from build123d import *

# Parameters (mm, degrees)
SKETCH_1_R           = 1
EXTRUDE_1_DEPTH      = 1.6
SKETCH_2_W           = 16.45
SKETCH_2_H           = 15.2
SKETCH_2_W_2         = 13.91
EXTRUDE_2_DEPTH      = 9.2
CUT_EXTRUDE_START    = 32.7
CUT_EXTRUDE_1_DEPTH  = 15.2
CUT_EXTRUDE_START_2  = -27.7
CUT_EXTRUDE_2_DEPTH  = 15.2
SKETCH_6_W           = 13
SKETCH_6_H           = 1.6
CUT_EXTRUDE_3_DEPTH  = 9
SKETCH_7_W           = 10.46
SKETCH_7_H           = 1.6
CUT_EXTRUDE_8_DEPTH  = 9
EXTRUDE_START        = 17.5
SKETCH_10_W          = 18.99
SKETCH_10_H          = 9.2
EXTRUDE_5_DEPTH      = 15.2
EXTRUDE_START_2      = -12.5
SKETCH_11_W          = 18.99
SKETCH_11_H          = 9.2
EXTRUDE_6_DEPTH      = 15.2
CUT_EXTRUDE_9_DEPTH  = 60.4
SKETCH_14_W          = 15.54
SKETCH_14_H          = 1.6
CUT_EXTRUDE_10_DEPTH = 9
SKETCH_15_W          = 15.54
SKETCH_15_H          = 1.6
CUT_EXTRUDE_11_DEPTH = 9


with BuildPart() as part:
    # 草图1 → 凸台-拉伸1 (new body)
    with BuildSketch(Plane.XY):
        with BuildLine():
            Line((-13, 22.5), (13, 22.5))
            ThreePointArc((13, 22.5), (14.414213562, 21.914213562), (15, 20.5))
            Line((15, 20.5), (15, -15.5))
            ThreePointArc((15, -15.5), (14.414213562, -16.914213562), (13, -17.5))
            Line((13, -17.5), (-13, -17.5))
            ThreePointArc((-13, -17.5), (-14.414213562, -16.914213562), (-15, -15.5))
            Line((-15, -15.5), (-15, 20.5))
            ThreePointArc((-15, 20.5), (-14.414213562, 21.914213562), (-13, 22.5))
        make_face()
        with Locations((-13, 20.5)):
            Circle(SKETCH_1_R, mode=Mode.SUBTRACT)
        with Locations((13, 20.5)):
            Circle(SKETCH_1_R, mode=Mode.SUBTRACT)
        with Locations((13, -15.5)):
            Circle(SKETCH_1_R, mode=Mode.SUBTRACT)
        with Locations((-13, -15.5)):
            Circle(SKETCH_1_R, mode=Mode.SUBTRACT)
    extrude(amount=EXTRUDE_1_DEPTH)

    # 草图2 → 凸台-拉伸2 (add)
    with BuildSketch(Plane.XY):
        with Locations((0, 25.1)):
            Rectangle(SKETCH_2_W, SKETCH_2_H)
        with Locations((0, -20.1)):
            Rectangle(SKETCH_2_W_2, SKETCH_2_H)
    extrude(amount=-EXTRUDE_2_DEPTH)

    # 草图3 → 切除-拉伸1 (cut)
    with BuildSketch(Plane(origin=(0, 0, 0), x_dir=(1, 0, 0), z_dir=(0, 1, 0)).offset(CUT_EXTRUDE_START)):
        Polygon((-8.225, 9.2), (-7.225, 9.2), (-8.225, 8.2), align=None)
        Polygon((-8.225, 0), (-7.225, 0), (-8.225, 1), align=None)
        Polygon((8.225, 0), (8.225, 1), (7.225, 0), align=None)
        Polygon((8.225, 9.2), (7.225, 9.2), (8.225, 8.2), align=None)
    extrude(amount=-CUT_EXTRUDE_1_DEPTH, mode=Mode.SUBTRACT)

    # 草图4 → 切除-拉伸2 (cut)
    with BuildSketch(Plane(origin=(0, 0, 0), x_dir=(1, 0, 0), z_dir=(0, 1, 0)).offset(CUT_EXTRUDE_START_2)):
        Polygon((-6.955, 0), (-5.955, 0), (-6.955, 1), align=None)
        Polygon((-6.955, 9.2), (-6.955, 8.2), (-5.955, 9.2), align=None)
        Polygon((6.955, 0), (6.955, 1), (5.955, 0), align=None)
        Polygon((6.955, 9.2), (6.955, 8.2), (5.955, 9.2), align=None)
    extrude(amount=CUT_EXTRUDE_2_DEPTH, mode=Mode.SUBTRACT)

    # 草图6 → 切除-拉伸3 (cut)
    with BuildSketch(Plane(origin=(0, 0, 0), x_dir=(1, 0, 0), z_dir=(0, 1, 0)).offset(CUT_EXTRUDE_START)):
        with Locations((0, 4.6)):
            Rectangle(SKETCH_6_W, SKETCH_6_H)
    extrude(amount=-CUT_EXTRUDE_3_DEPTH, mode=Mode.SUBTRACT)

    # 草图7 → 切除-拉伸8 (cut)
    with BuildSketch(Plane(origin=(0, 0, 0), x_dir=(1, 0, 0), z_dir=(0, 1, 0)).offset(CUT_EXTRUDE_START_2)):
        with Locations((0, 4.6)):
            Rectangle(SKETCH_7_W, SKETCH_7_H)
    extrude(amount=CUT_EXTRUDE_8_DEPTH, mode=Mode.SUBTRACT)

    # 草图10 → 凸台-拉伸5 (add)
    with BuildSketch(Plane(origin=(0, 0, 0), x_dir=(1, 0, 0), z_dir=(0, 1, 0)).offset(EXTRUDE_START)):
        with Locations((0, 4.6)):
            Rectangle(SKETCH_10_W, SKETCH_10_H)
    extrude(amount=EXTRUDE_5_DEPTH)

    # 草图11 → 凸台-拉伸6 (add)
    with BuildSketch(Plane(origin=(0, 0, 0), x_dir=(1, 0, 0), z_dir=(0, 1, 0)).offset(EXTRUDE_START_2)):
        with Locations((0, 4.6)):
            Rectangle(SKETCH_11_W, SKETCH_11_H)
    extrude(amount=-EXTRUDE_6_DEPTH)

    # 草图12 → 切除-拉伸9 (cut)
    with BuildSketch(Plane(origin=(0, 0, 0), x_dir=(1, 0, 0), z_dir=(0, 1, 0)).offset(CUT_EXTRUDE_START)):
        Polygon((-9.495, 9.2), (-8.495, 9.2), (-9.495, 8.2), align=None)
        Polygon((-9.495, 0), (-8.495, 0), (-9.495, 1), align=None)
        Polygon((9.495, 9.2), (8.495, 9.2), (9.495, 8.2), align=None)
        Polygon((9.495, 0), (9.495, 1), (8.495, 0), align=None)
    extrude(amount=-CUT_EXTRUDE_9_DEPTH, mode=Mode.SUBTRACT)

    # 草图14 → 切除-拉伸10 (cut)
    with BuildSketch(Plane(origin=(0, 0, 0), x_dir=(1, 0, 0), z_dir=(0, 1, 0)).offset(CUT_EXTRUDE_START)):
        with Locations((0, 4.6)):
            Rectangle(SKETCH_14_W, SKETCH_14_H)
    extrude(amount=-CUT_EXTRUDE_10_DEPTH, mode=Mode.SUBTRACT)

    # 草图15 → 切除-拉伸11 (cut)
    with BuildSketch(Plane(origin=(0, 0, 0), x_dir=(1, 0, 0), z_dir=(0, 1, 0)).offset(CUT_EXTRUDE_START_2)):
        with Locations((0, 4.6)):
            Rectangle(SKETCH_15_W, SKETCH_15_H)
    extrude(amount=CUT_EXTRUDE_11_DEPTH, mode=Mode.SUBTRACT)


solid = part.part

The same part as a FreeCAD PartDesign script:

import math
import FreeCAD as App
import Part
import Sketcher
Q = App.Units.Quantity


def add_polygon(sketch, points):
    """Adds a closed chain of lines whose ends are joined by coincident constraints."""
    first, n = sketch.GeometryCount, len(points)
    for a, b in zip(points, points[1:] + points[:1]):
        sketch.addGeometry(Part.LineSegment(App.Vector(*a, 0), App.Vector(*b, 0)), False)
    for i in range(n):
        sketch.addConstraint(Sketcher.Constraint("Coincident", first + i, 2, first + (i + 1) % n, 1))

doc = App.newDocument("Part")
body = doc.addObject("PartDesign::Body", "Body")

sketch1 = doc.addObject("Sketcher::SketchObject", "Sketch")
body.addObject(sketch1)
sketch1.AttachmentSupport = (doc.XY_Plane, [""])
sketch1.MapMode = "FlatFace"
sketch1.addGeometry([
    Part.LineSegment(App.Vector(13, 22.5, 0), App.Vector(-13, 22.5, 0)),
    Part.ArcOfCircle(Part.Circle(App.Vector(-13, 20.5, 0), App.Vector(0, 0, 1), 2), math.radians(90), math.radians(180)),
    Part.LineSegment(App.Vector(-15, 20.5, 0), App.Vector(-15, -15.5, 0)),
    Part.ArcOfCircle(Part.Circle(App.Vector(-13, -15.5, 0), App.Vector(0, 0, 1), 2), math.radians(-180), math.radians(-90)),
    Part.LineSegment(App.Vector(-13, -17.5, 0), App.Vector(13, -17.5, 0)),
    Part.ArcOfCircle(Part.Circle(App.Vector(13, -15.5, 0), App.Vector(0, 0, 1), 2), math.radians(-90), math.radians(0)),
    Part.LineSegment(App.Vector(15, -15.5, 0), App.Vector(15, 20.5, 0)),
    Part.ArcOfCircle(Part.Circle(App.Vector(13, 20.5, 0), App.Vector(0, 0, 1), 2), math.radians(0), math.radians(90)),
    Part.Circle(App.Vector(13, -15.5, 0), App.Vector(0, 0, 1), 1),
    Part.Circle(App.Vector(-13, -15.5, 0), App.Vector(0, 0, 1), 1),
    Part.Circle(App.Vector(13, 20.5, 0), App.Vector(0, 0, 1), 1),
    Part.Circle(App.Vector(-13, 20.5, 0), App.Vector(0, 0, 1), 1),
], False)
sketch1.addConstraint([
    Sketcher.Constraint("Tangent", 0, 2, 1, 1),
    Sketcher.Constraint("Tangent", 1, 2, 2, 1),
    Sketcher.Constraint("Tangent", 2, 2, 3, 1),
    Sketcher.Constraint("Tangent", 3, 2, 4, 1),
    Sketcher.Constraint("Tangent", 4, 2, 5, 1),
    Sketcher.Constraint("Tangent", 5, 2, 6, 1),
    Sketcher.Constraint("Tangent", 6, 2, 7, 1),
    Sketcher.Constraint("Tangent", 7, 2, 0, 1),
    Sketcher.Constraint("Horizontal", 0),
    Sketcher.Constraint("Vertical", 2),
    Sketcher.Constraint("Horizontal", 4),
    Sketcher.Constraint("Vertical", 6),
    Sketcher.Constraint("Coincident", 8, 3, 5, 3),
    Sketcher.Constraint("Coincident", 9, 3, 3, 3),
    Sketcher.Constraint("Coincident", 10, 3, 7, 3),
    Sketcher.Constraint("Coincident", 11, 3, 1, 3),
    Sketcher.Constraint("Equal", 1, 3),
    Sketcher.Constraint("Equal", 3, 5),
    Sketcher.Constraint("Equal", 5, 7),
    Sketcher.Constraint("Equal", 8, 9),
    Sketcher.Constraint("Equal", 9, 10),
    Sketcher.Constraint("Equal", 10, 11),
    Sketcher.Constraint("Diameter", 8, Q("2 mm")),
    Sketcher.Constraint("Radius", 1, Q("2 mm")),
    Sketcher.Constraint("DistanceX", 0, 2, 0, 1, Q("26 mm")),
    Sketcher.Constraint("DistanceY", 2, 2, 2, 1, Q("36 mm")),
    Sketcher.Constraint("DistanceX", 1, 3, -1, 1, Q("13 mm")),
    Sketcher.Constraint("DistanceY", -1, 1, 1, 3, Q("20.5 mm")),
])
pad1 = doc.addObject("PartDesign::Pad", "Pad")
body.addObject(pad1)
pad1.Profile = sketch1
pad1.Length = 1.6

sketch2 = doc.addObject("Sketcher::SketchObject", "Sketch001")
body.addObject(sketch2)
sketch2.AttachmentSupport = (doc.XY_Plane, [""])
sketch2.MapMode = "FlatFace"
add_polygon(sketch2, [(-8.225, 32.7), (-8.225, 17.5), (8.225, 17.5), (8.225, 32.7)])
add_polygon(sketch2, [(-6.955, -12.5), (-6.955, -27.7), (6.955, -27.7), (6.955, -12.5)])
sketch2.addConstraint([
    Sketcher.Constraint("Vertical", 0),
    Sketcher.Constraint("Horizontal", 1),
    Sketcher.Constraint("Vertical", 2),
    Sketcher.Constraint("Horizontal", 3),
    Sketcher.Constraint("Vertical", 4),
    Sketcher.Constraint("Horizontal", 5),
    Sketcher.Constraint("Vertical", 6),
    Sketcher.Constraint("Horizontal", 7),
    Sketcher.Constraint("Equal", 2, 4),
    Sketcher.Constraint("DistanceY", 0, 2, 0, 1, Q("15.2 mm")),
    Sketcher.Constraint("DistanceY", 6, 2, 1, 2, Q("30 mm")),
    Sketcher.Constraint("DistanceX", 1, 1, 1, 2, Q("16.45 mm")),
    Sketcher.Constraint("DistanceX", 5, 1, 5, 2, Q("13.91 mm")),
    Sketcher.Constraint("DistanceY", -1, 1, 0, 2, Q("17.5 mm")),
    Sketcher.Constraint("DistanceX", 0, 2, 4, 2, Q("1.27 mm")),
    Sketcher.Constraint("DistanceX", 0, 2, -1, 1, Q("8.225 mm")),
])
pad2 = doc.addObject("PartDesign::Pad", "Pad001")
body.addObject(pad2)
pad2.Profile = sketch2
pad2.Length = 9.2
pad2.Reversed = True

sketch3 = doc.addObject("Sketcher::SketchObject", "Sketch002")
body.addObject(sketch3)
sketch3.AttachmentSupport = (doc.XZ_Plane, [""])
sketch3.MapMode = "FlatFace"
sketch3.AttachmentOffset = App.Placement(App.Vector(0, 0, -32.7), App.Rotation())
add_polygon(sketch3, [(-7.225, -9.2), (-8.225, -9.2), (-8.225, -8.2)])
add_polygon(sketch3, [(-8.225, 0), (-7.225, 0), (-8.225, -1)])
add_polygon(sketch3, [(8.225, 0), (8.225, -1), (7.225, 0)])
add_polygon(sketch3, [(8.225, -9.2), (7.225, -9.2), (8.225, -8.2)])
sketch3.addConstraint([
    Sketcher.Constraint("Horizontal", 0),
    Sketcher.Constraint("Vertical", 1),
    Sketcher.Constraint("Horizontal", 3),
    Sketcher.Constraint("Vertical", 5),
    Sketcher.Constraint("Vertical", 6),
    Sketcher.Constraint("Horizontal", 8),
    Sketcher.Constraint("Horizontal", 9),
    Sketcher.Constraint("Vertical", 11),
    Sketcher.Constraint("Symmetric", 3, 2, 7, 2, -1, 1),
    Sketcher.Constraint("Symmetric", 4, 2, 6, 2, -2),
    Sketcher.Constraint("Symmetric", 2, 2, 9, 2, -2),
    Sketcher.Constraint("Symmetric", 1, 2, 10, 2, -2),
    Sketcher.Constraint("PointOnObject", 3, 2, -1),
    Sketcher.Constraint("Perpendicular", 2, 4),
    Sketcher.Constraint("Perpendicular", 4, 7),
    Sketcher.Constraint("Vertical", 2, 2, 3, 2),
    Sketcher.Constraint("Vertical", 1, 2, 4, 2),
    Sketcher.Constraint("DistanceX", 0, 2, 0, 1, Q("1 mm")),
    Sketcher.Constraint("DistanceY", 0, 2, -1, 1, Q("9.2 mm")),
    Sketcher.Constraint("DistanceX", 3, 2, 6, 2, Q("15.45 mm")),
])
pocket1 = doc.addObject("PartDesign::Pocket", "Pocket")
body.addObject(pocket1)
pocket1.Profile = sketch3
pocket1.Length = 15.2
pocket1.Reversed = True

sketch4 = doc.addObject("Sketcher::SketchObject", "Sketch003")
body.addObject(sketch4)
sketch4.AttachmentSupport = (doc.XZ_Plane, [""])
sketch4.MapMode = "FlatFace"
sketch4.AttachmentOffset = App.Placement(App.Vector(0, 0, 27.7), App.Rotation())
add_polygon(sketch4, [(-6.955, 0), (-5.955, 0), (-6.955, -1)])
add_polygon(sketch4, [(-6.955, -9.2), (-6.955, -8.2), (-5.955, -9.2)])
add_polygon(sketch4, [(6.955, 0), (6.955, -1), (5.955, 0)])
add_polygon(sketch4, [(6.955, -8.2), (6.955, -9.2), (5.955, -9.2)])
sketch4.addConstraint([
    Sketcher.Constraint("Horizontal", 0),
    Sketcher.Constraint("Vertical", 2),
    Sketcher.Constraint("Vertical", 3),
    Sketcher.Constraint("Horizontal", 5),
    Sketcher.Constraint("Vertical", 6),
    Sketcher.Constraint("Horizontal", 8),
    Sketcher.Constraint("Vertical", 9),
    Sketcher.Constraint("Horizontal", 10),
    Sketcher.Constraint("Symmetric", 0, 2, 7, 2, -1, 1),
    Sketcher.Constraint("Symmetric", 1, 2, 6, 2, -2),
    Sketcher.Constraint("Symmetric", 5, 2, 9, 2, -2),
    Sketcher.Constraint("PointOnObject", 0, 2, -1),
    Sketcher.Constraint("Perpendicular", 1, 4),
    Sketcher.Constraint("Parallel", 4, 7),
    Sketcher.Constraint("Perpendicular", 7, 11),
    Sketcher.Constraint("Horizontal", 3, 2, 11, 2),
    Sketcher.Constraint("Vertical", 2, 2, 3, 2),
    Sketcher.Constraint("Vertical", 0, 2, 4, 2),
    Sketcher.Constraint("DistanceX", 0, 1, 0, 2, Q("1 mm")),
    Sketcher.Constraint("DistanceY", 3, 2, -1, 1, Q("8.2 mm")),
    Sketcher.Constraint("DistanceX", 0, 2, 6, 2, Q("12.91 mm")),
])
pocket2 = doc.addObject("PartDesign::Pocket", "Pocket001")
body.addObject(pocket2)
pocket2.Profile = sketch4
pocket2.Length = 15.2

sketch5 = doc.addObject("Sketcher::SketchObject", "Sketch004")
body.addObject(sketch5)
sketch5.AttachmentSupport = (doc.XZ_Plane, [""])
sketch5.MapMode = "FlatFace"
sketch5.AttachmentOffset = App.Placement(App.Vector(0, 0, -32.7), App.Rotation())
add_polygon(sketch5, [(-6.5, -5.4), (-6.5, -3.8), (6.5, -3.8), (6.5, -5.4)])
sketch5.addConstraint([
    Sketcher.Constraint("Vertical", 0),
    Sketcher.Constraint("Horizontal", 1),
    Sketcher.Constraint("Vertical", 2),
    Sketcher.Constraint("Horizontal", 3),
    Sketcher.Constraint("DistanceX", 1, 1, 1, 2, Q("13 mm")),
    Sketcher.Constraint("DistanceY", 0, 1, 0, 2, Q("1.6 mm")),
    Sketcher.Constraint("DistanceX", 0, 2, -1, 1, Q("6.5 mm")),
    Sketcher.Constraint("DistanceY", 0, 2, -1, 1, Q("3.8 mm")),
])
pocket3 = doc.addObject("PartDesign::Pocket", "Pocket002")
body.addObject(pocket3)
pocket3.Profile = sketch5
pocket3.Length = 9
pocket3.Reversed = True

sketch6 = doc.addObject("Sketcher::SketchObject", "Sketch005")
body.addObject(sketch6)
sketch6.AttachmentSupport = (doc.XZ_Plane, [""])
sketch6.MapMode = "FlatFace"
sketch6.AttachmentOffset = App.Placement(App.Vector(0, 0, 27.7), App.Rotation())
add_polygon(sketch6, [(-5.23, -5.4), (-5.23, -3.8), (5.23, -3.8), (5.23, -5.4)])
sketch6.addConstraint([
    Sketcher.Constraint("Vertical", 0),
    Sketcher.Constraint("Horizontal", 1),
    Sketcher.Constraint("Vertical", 2),
    Sketcher.Constraint("Horizontal", 3),
    Sketcher.Constraint("DistanceY", 0, 1, 0, 2, Q("1.6 mm")),
    Sketcher.Constraint("DistanceX", 1, 1, 1, 2, Q("10.46 mm")),
    Sketcher.Constraint("DistanceY", 0, 2, -1, 1, Q("3.8 mm")),
    Sketcher.Constraint("DistanceX", 0, 2, -1, 1, Q("5.23 mm")),
])
pocket4 = doc.addObject("PartDesign::Pocket", "Pocket003")
body.addObject(pocket4)
pocket4.Profile = sketch6
pocket4.Length = 9

sketch7 = doc.addObject("Sketcher::SketchObject", "Sketch006")
body.addObject(sketch7)
sketch7.AttachmentSupport = (doc.XZ_Plane, [""])
sketch7.MapMode = "FlatFace"
sketch7.AttachmentOffset = App.Placement(App.Vector(0, 0, -17.5), App.Rotation())
add_polygon(sketch7, [(-9.495, -9.2), (-9.495, 0), (9.495, 0), (9.495, -9.2)])
sketch7.addConstraint([
    Sketcher.Constraint("Vertical", 0),
    Sketcher.Constraint("Horizontal", 1),
    Sketcher.Constraint("Vertical", 2),
    Sketcher.Constraint("Horizontal", 3),
    Sketcher.Constraint("Symmetric", 0, 2, 1, 2, -1, 1),
    Sketcher.Constraint("DistanceY", 0, 1, 0, 2, Q("9.2 mm")),
    Sketcher.Constraint("DistanceX", 1, 1, 1, 2, Q("18.99 mm")),
])
pad3 = doc.addObject("PartDesign::Pad", "Pad002")
body.addObject(pad3)
pad3.Profile = sketch7
pad3.Length = 15.2
pad3.Reversed = True

sketch8 = doc.addObject("Sketcher::SketchObject", "Sketch007")
body.addObject(sketch8)
sketch8.AttachmentSupport = (doc.XZ_Plane, [""])
sketch8.MapMode = "FlatFace"
sketch8.AttachmentOffset = App.Placement(App.Vector(0, 0, 12.5), App.Rotation())
add_polygon(sketch8, [(-9.495, -9.2), (-9.495, 0), (9.495, 0), (9.495, -9.2)])
sketch8.addConstraint([
    Sketcher.Constraint("Vertical", 0),
    Sketcher.Constraint("Horizontal", 1),
    Sketcher.Constraint("Vertical", 2),
    Sketcher.Constraint("Horizontal", 3),
    Sketcher.Constraint("Symmetric", 0, 2, 1, 2, -1, 1),
    Sketcher.Constraint("DistanceY", 0, 1, 0, 2, Q("9.2 mm")),
    Sketcher.Constraint("DistanceX", 1, 1, 1, 2, Q("18.99 mm")),
])
pad4 = doc.addObject("PartDesign::Pad", "Pad003")
body.addObject(pad4)
pad4.Profile = sketch8
pad4.Length = 15.2

sketch9 = doc.addObject("Sketcher::SketchObject", "Sketch008")
body.addObject(sketch9)
sketch9.AttachmentSupport = (doc.XZ_Plane, [""])
sketch9.MapMode = "FlatFace"
sketch9.AttachmentOffset = App.Placement(App.Vector(0, 0, -32.7), App.Rotation())
add_polygon(sketch9, [(-8.495, -9.2), (-9.495, -9.2), (-9.495, -8.2)])
add_polygon(sketch9, [(-9.495, 0), (-8.495, 0), (-9.495, -1)])
add_polygon(sketch9, [(9.495, -9.2), (8.495, -9.2), (9.495, -8.2)])
add_polygon(sketch9, [(9.495, 0), (9.495, -1), (8.495, 0)])
sketch9.addConstraint([
    Sketcher.Constraint("Horizontal", 0),
    Sketcher.Constraint("Vertical", 1),
    Sketcher.Constraint("Horizontal", 3),
    Sketcher.Constraint("Vertical", 5),
    Sketcher.Constraint("Horizontal", 6),
    Sketcher.Constraint("Vertical", 8),
    Sketcher.Constraint("Vertical", 9),
    Sketcher.Constraint("Horizontal", 11),
    Sketcher.Constraint("Symmetric", 3, 2, 10, 2, -1, 1),
    Sketcher.Constraint("Symmetric", 2, 2, 6, 2, -2),
    Sketcher.Constraint("Symmetric", 1, 2, 7, 2, -2),
    Sketcher.Constraint("Symmetric", 4, 2, 9, 2, -2),
    Sketcher.Constraint("PointOnObject", 3, 2, -1),
    Sketcher.Constraint("Perpendicular", 2, 4),
    Sketcher.Constraint("Parallel", 4, 7),
    Sketcher.Constraint("Vertical", 2, 2, 3, 2),
    Sketcher.Constraint("Vertical", 1, 2, 4, 2),
    Sketcher.Constraint("DistanceX", 0, 2, 0, 1, Q("1 mm")),
    Sketcher.Constraint("DistanceY", 0, 2, -1, 1, Q("9.2 mm")),
    Sketcher.Constraint("DistanceX", 2, 2, 6, 2, Q("16.99 mm")),
])
pocket5 = doc.addObject("PartDesign::Pocket", "Pocket004")
body.addObject(pocket5)
pocket5.Profile = sketch9
pocket5.Length = 60.4
pocket5.Reversed = True

sketch10 = doc.addObject("Sketcher::SketchObject", "Sketch009")
body.addObject(sketch10)
sketch10.AttachmentSupport = (doc.XZ_Plane, [""])
sketch10.MapMode = "FlatFace"
sketch10.AttachmentOffset = App.Placement(App.Vector(0, 0, -32.7), App.Rotation())
add_polygon(sketch10, [(-7.77, -5.4), (-7.77, -3.8), (7.77, -3.8), (7.77, -5.4)])
sketch10.addConstraint([
    Sketcher.Constraint("Vertical", 0),
    Sketcher.Constraint("Horizontal", 1),
    Sketcher.Constraint("Vertical", 2),
    Sketcher.Constraint("Horizontal", 3),
    Sketcher.Constraint("DistanceY", 0, 1, 0, 2, Q("1.6 mm")),
    Sketcher.Constraint("DistanceX", 1, 1, 1, 2, Q("15.54 mm")),
    Sketcher.Constraint("DistanceY", 0, 2, -1, 1, Q("3.8 mm")),
    Sketcher.Constraint("DistanceX", 0, 2, -1, 1, Q("7.77 mm")),
])
pocket6 = doc.addObject("PartDesign::Pocket", "Pocket005")
body.addObject(pocket6)
pocket6.Profile = sketch10
pocket6.Length = 9
pocket6.Reversed = True

sketch11 = doc.addObject("Sketcher::SketchObject", "Sketch010")
body.addObject(sketch11)
sketch11.AttachmentSupport = (doc.XZ_Plane, [""])
sketch11.MapMode = "FlatFace"
sketch11.AttachmentOffset = App.Placement(App.Vector(0, 0, 27.7), App.Rotation())
add_polygon(sketch11, [(-7.77, -5.4), (-7.77, -3.8), (7.77, -3.8), (7.77, -5.4)])
sketch11.addConstraint([
    Sketcher.Constraint("Vertical", 0),
    Sketcher.Constraint("Horizontal", 1),
    Sketcher.Constraint("Vertical", 2),
    Sketcher.Constraint("Horizontal", 3),
    Sketcher.Constraint("DistanceY", 0, 1, 0, 2, Q("1.6 mm")),
    Sketcher.Constraint("DistanceX", 1, 1, 1, 2, Q("15.54 mm")),
    Sketcher.Constraint("DistanceY", 0, 2, -1, 1, Q("3.8 mm")),
    Sketcher.Constraint("DistanceX", 0, 2, -1, 1, Q("7.77 mm")),
])
pocket7 = doc.addObject("PartDesign::Pocket", "Pocket006")
body.addObject(pocket7)
pocket7.Profile = sketch11
pocket7.Length = 9

doc.recompute()
